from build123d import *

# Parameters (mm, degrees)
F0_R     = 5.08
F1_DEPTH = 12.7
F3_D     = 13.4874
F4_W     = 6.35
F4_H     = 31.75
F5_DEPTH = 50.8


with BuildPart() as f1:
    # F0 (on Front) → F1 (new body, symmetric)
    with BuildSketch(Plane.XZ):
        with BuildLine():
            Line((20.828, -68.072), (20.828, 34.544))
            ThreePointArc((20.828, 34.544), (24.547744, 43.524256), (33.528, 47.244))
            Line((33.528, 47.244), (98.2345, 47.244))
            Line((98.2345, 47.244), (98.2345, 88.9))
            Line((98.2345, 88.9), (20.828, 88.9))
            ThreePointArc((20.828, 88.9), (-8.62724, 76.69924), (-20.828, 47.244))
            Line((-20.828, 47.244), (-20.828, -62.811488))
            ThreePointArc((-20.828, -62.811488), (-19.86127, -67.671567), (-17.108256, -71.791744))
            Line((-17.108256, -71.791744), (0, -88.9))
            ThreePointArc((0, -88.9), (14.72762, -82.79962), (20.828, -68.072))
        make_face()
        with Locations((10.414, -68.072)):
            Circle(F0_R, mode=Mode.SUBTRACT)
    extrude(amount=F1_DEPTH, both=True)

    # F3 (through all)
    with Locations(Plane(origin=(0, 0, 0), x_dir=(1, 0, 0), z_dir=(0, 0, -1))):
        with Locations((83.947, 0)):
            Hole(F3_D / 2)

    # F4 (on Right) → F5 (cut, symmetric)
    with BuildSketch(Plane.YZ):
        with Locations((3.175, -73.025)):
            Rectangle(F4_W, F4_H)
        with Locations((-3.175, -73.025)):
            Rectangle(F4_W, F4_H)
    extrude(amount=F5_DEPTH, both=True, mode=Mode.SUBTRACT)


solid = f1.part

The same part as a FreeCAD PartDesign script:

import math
import FreeCAD as App
import Part
import Sketcher
from FreeCAD import Vector
Q = App.Units.Quantity


def add_polygon(sketch, points):
    """Adds a closed chain of lines whose ends are joined by coincident constraints."""
    first, n = sketch.GeometryCount, len(points)
    for a, b in zip(points, points[1:] + points[:1]):
        sketch.addGeometry(Part.LineSegment(App.Vector(*a, 0), App.Vector(*b, 0)), False)
    for i in range(n):
        sketch.addConstraint(Sketcher.Constraint("Coincident", first + i, 2, first + (i + 1) % n, 1))

doc = App.newDocument("Part")
body = doc.addObject("PartDesign::Body", "Body")

# Sketch on XZ plane
sketch1 = body.newObject("Sketcher::SketchObject", "Sketch")
sketch1.AttachmentSupport = (doc.getObject("XZ_Plane"), [""])
sketch1.MapMode = "FlatFace"
sketch1.addGeometry(Part.LineSegment(Vector(20.828, -68.072, 0), Vector(20.828, 34.544, 0)), False)
sketch1.addGeometry(Part.ArcOfCircle(Part.Circle(Vector(33.528, 34.544, 0), Vector(0, 0, 1), 12.7), math.radians(90.000002), math.radians(179.999998)), False)
sketch1.addGeometry(Part.LineSegment(Vector(33.528, 47.244, 0), Vector(98.2345, 47.244, 0)), False)
sketch1.addGeometry(Part.LineSegment(Vector(98.2345, 47.244, 0), Vector(98.2345, 88.9, 0)), False)
sketch1.addGeometry(Part.LineSegment(Vector(98.2345, 88.9, 0), Vector(20.828, 88.9, 0)), False)
sketch1.addGeometry(Part.ArcOfCircle(Part.Circle(Vector(20.828, 47.244, 0), Vector(0, 0, 1), 41.656), math.radians(90), math.radians(180)), False)
sketch1.addGeometry(Part.LineSegment(Vector(-20.828, 47.244, 0), Vector(-20.828, -62.811488, 0)), False)
sketch1.addGeometry(Part.ArcOfCircle(Part.Circle(Vector(-8.127998, -62.811487, 0), Vector(0, 0, 1), 12.700002), math.radians(-179.999995), math.radians(-135.000004)), False)
sketch1.addGeometry(Part.LineSegment(Vector(-17.108256, -71.791744, 0), Vector(0, -88.9, 0)), False)
sketch1.addGeometry(Part.ArcOfCircle(Part.Circle(Vector(0, -68.072, 0), Vector(0, 0, 1), 20.828), math.radians(-90), math.radians(0)), False)
sketch1.addGeometry(Part.Circle(Vector(10.414, -68.072, 0), Vector(0, 0, 1), 5.08), False)
sketch1.addConstraint(Sketcher.Constraint("Tangent", 0, 2, 1, 2))
sketch1.addConstraint(Sketcher.Constraint("Tangent", 1, 1, 2, 1))
sketch1.addConstraint(Sketcher.Constraint("Coincident", 2, 2, 3, 1))
sketch1.addConstraint(Sketcher.Constraint("Coincident", 3, 2, 4, 1))
sketch1.addConstraint(Sketcher.Constraint("Tangent", 4, 2, 5, 1))
sketch1.addConstraint(Sketcher.Constraint("Tangent", 5, 2, 6, 1))
sketch1.addConstraint(Sketcher.Constraint("Tangent", 6, 2, 7, 1))
sketch1.addConstraint(Sketcher.Constraint("Tangent", 7, 2, 8, 1))
sketch1.addConstraint(Sketcher.Constraint("Coincident", 8, 2, 9, 1))
sketch1.addConstraint(Sketcher.Constraint("Tangent", 9, 2, 0, 1))
sketch1.addConstraint(Sketcher.Constraint("Vertical", 0))
sketch1.addConstraint(Sketcher.Constraint("Horizontal", 2))
sketch1.addConstraint(Sketcher.Constraint("Vertical", 3))
sketch1.addConstraint(Sketcher.Constraint("Horizontal", 4))
sketch1.addConstraint(Sketcher.Constraint("Vertical", 6))
sketch1.addConstraint(Sketcher.Constraint("Equal", 1, 7))
sketch1.addConstraint(Sketcher.Constraint("PointOnObject", 9, 3, -2))
sketch1.addConstraint(Sketcher.Constraint("PointOnObject", 8, 2, -2))
sketch1.addConstraint(Sketcher.Constraint("Horizontal", 9, 3, 10, 3))
sketch1.addConstraint(Sketcher.Constraint("Horizontal", 5, 3, 1, 1))
sketch1.addConstraint(Sketcher.Constraint("Vertical", 5, 3, 0, 2))
sketch1.addConstraint(Sketcher.Constraint("Diameter", 10, Q("0.4 in")))
sketch1.addConstraint(Sketcher.Constraint("Radius", 1, Q("0.5 in")))
sketch1.addConstraint(Sketcher.Constraint("Radius", 5, Q("1.64 in")))
sketch1.addConstraint(Sketcher.Constraint("Radius", 9, Q("0.82 in")))
sketch1.addConstraint(Sketcher.Constraint("Angle", 8, Q("-45 deg")))
sketch1.addConstraint(Sketcher.Constraint("DistanceY", 0, 1, 0, 2, Q("4.04 in")))
sketch1.addConstraint(Sketcher.Constraint("DistanceY", -1, 1, 3, 2, Q("3.5 in")))
sketch1.addConstraint(Sketcher.Constraint("DistanceX", -1, 1, 10, 3, Q("0.41 in")))
sketch1.addConstraint(Sketcher.Constraint("DistanceX", 2, 1, 2, 2, Q("2.5475 in")))
pad1 = body.newObject("PartDesign::Pad", "Pad")
pad1.Profile = sketch1
pad1.Length = Q("1 in")
pad1.Midplane = True

# Sketch on XY plane
sketch2 = body.newObject("Sketcher::SketchObject", "Sketch001")
sketch2.AttachmentSupport = (doc.getObject("XY_Plane"), [""])
sketch2.MapMode = "FlatFace"
sketch2.addGeometry(Part.Circle(Vector(83.947, 0, 0), Vector(0, 0, 1), 6.7437), False)
sketch2.addConstraint(Sketcher.Constraint("PointOnObject", 0, 3, -1))
sketch2.addConstraint(Sketcher.Constraint("Diameter", 0, Q("0.531 in")))
sketch2.addConstraint(Sketcher.Constraint("DistanceX", -1, 1, 0, 3, Q("3.305 in")))
doc.recompute()
hole = body.newObject("PartDesign::Hole", "Hole")
hole.Profile = sketch2
hole.ThreadType = "None"
hole.Diameter = Q("0.531 in")
hole.DepthType = "ThroughAll"
hole.Reversed = True

# Sketch on YZ plane
sketch3 = body.newObject("Sketcher::SketchObject", "Sketch002")
sketch3.AttachmentSupport = (doc.getObject("YZ_Plane"), [""])
sketch3.MapMode = "FlatFace"
add_polygon(sketch3, [(6.35, -88.9), (6.35, -57.15), (-6.35, -57.15), (-6.35, -88.9)])  # lines 0-3
sketch3.addConstraint(Sketcher.Constraint("Vertical", 0))
sketch3.addConstraint(Sketcher.Constraint("Horizontal", 1))
sketch3.addConstraint(Sketcher.Constraint("Vertical", 2))
sketch3.addConstraint(Sketcher.Constraint("Horizontal", 3))
sketch3.addConstraint(Sketcher.Constraint("DistanceX", 1, 2, 1, 1, Q("0.5 in")))
sketch3.addConstraint(Sketcher.Constraint("DistanceY", 0, 1, 0, 2, Q("1.25 in")))
sketch3.addConstraint(Sketcher.Constraint("DistanceY", 2, 2, -1, 1, Q("3.5 in")))
sketch3.addConstraint(Sketcher.Constraint("DistanceX", -1, 1, 0, 2, Q("0.25 in")))
pocket1 = body.newObject("PartDesign::Pocket", "Pocket")
pocket1.Profile = sketch3
pocket1.Length = Q("4 in")
pocket1.Midplane = True

doc.recompute()
